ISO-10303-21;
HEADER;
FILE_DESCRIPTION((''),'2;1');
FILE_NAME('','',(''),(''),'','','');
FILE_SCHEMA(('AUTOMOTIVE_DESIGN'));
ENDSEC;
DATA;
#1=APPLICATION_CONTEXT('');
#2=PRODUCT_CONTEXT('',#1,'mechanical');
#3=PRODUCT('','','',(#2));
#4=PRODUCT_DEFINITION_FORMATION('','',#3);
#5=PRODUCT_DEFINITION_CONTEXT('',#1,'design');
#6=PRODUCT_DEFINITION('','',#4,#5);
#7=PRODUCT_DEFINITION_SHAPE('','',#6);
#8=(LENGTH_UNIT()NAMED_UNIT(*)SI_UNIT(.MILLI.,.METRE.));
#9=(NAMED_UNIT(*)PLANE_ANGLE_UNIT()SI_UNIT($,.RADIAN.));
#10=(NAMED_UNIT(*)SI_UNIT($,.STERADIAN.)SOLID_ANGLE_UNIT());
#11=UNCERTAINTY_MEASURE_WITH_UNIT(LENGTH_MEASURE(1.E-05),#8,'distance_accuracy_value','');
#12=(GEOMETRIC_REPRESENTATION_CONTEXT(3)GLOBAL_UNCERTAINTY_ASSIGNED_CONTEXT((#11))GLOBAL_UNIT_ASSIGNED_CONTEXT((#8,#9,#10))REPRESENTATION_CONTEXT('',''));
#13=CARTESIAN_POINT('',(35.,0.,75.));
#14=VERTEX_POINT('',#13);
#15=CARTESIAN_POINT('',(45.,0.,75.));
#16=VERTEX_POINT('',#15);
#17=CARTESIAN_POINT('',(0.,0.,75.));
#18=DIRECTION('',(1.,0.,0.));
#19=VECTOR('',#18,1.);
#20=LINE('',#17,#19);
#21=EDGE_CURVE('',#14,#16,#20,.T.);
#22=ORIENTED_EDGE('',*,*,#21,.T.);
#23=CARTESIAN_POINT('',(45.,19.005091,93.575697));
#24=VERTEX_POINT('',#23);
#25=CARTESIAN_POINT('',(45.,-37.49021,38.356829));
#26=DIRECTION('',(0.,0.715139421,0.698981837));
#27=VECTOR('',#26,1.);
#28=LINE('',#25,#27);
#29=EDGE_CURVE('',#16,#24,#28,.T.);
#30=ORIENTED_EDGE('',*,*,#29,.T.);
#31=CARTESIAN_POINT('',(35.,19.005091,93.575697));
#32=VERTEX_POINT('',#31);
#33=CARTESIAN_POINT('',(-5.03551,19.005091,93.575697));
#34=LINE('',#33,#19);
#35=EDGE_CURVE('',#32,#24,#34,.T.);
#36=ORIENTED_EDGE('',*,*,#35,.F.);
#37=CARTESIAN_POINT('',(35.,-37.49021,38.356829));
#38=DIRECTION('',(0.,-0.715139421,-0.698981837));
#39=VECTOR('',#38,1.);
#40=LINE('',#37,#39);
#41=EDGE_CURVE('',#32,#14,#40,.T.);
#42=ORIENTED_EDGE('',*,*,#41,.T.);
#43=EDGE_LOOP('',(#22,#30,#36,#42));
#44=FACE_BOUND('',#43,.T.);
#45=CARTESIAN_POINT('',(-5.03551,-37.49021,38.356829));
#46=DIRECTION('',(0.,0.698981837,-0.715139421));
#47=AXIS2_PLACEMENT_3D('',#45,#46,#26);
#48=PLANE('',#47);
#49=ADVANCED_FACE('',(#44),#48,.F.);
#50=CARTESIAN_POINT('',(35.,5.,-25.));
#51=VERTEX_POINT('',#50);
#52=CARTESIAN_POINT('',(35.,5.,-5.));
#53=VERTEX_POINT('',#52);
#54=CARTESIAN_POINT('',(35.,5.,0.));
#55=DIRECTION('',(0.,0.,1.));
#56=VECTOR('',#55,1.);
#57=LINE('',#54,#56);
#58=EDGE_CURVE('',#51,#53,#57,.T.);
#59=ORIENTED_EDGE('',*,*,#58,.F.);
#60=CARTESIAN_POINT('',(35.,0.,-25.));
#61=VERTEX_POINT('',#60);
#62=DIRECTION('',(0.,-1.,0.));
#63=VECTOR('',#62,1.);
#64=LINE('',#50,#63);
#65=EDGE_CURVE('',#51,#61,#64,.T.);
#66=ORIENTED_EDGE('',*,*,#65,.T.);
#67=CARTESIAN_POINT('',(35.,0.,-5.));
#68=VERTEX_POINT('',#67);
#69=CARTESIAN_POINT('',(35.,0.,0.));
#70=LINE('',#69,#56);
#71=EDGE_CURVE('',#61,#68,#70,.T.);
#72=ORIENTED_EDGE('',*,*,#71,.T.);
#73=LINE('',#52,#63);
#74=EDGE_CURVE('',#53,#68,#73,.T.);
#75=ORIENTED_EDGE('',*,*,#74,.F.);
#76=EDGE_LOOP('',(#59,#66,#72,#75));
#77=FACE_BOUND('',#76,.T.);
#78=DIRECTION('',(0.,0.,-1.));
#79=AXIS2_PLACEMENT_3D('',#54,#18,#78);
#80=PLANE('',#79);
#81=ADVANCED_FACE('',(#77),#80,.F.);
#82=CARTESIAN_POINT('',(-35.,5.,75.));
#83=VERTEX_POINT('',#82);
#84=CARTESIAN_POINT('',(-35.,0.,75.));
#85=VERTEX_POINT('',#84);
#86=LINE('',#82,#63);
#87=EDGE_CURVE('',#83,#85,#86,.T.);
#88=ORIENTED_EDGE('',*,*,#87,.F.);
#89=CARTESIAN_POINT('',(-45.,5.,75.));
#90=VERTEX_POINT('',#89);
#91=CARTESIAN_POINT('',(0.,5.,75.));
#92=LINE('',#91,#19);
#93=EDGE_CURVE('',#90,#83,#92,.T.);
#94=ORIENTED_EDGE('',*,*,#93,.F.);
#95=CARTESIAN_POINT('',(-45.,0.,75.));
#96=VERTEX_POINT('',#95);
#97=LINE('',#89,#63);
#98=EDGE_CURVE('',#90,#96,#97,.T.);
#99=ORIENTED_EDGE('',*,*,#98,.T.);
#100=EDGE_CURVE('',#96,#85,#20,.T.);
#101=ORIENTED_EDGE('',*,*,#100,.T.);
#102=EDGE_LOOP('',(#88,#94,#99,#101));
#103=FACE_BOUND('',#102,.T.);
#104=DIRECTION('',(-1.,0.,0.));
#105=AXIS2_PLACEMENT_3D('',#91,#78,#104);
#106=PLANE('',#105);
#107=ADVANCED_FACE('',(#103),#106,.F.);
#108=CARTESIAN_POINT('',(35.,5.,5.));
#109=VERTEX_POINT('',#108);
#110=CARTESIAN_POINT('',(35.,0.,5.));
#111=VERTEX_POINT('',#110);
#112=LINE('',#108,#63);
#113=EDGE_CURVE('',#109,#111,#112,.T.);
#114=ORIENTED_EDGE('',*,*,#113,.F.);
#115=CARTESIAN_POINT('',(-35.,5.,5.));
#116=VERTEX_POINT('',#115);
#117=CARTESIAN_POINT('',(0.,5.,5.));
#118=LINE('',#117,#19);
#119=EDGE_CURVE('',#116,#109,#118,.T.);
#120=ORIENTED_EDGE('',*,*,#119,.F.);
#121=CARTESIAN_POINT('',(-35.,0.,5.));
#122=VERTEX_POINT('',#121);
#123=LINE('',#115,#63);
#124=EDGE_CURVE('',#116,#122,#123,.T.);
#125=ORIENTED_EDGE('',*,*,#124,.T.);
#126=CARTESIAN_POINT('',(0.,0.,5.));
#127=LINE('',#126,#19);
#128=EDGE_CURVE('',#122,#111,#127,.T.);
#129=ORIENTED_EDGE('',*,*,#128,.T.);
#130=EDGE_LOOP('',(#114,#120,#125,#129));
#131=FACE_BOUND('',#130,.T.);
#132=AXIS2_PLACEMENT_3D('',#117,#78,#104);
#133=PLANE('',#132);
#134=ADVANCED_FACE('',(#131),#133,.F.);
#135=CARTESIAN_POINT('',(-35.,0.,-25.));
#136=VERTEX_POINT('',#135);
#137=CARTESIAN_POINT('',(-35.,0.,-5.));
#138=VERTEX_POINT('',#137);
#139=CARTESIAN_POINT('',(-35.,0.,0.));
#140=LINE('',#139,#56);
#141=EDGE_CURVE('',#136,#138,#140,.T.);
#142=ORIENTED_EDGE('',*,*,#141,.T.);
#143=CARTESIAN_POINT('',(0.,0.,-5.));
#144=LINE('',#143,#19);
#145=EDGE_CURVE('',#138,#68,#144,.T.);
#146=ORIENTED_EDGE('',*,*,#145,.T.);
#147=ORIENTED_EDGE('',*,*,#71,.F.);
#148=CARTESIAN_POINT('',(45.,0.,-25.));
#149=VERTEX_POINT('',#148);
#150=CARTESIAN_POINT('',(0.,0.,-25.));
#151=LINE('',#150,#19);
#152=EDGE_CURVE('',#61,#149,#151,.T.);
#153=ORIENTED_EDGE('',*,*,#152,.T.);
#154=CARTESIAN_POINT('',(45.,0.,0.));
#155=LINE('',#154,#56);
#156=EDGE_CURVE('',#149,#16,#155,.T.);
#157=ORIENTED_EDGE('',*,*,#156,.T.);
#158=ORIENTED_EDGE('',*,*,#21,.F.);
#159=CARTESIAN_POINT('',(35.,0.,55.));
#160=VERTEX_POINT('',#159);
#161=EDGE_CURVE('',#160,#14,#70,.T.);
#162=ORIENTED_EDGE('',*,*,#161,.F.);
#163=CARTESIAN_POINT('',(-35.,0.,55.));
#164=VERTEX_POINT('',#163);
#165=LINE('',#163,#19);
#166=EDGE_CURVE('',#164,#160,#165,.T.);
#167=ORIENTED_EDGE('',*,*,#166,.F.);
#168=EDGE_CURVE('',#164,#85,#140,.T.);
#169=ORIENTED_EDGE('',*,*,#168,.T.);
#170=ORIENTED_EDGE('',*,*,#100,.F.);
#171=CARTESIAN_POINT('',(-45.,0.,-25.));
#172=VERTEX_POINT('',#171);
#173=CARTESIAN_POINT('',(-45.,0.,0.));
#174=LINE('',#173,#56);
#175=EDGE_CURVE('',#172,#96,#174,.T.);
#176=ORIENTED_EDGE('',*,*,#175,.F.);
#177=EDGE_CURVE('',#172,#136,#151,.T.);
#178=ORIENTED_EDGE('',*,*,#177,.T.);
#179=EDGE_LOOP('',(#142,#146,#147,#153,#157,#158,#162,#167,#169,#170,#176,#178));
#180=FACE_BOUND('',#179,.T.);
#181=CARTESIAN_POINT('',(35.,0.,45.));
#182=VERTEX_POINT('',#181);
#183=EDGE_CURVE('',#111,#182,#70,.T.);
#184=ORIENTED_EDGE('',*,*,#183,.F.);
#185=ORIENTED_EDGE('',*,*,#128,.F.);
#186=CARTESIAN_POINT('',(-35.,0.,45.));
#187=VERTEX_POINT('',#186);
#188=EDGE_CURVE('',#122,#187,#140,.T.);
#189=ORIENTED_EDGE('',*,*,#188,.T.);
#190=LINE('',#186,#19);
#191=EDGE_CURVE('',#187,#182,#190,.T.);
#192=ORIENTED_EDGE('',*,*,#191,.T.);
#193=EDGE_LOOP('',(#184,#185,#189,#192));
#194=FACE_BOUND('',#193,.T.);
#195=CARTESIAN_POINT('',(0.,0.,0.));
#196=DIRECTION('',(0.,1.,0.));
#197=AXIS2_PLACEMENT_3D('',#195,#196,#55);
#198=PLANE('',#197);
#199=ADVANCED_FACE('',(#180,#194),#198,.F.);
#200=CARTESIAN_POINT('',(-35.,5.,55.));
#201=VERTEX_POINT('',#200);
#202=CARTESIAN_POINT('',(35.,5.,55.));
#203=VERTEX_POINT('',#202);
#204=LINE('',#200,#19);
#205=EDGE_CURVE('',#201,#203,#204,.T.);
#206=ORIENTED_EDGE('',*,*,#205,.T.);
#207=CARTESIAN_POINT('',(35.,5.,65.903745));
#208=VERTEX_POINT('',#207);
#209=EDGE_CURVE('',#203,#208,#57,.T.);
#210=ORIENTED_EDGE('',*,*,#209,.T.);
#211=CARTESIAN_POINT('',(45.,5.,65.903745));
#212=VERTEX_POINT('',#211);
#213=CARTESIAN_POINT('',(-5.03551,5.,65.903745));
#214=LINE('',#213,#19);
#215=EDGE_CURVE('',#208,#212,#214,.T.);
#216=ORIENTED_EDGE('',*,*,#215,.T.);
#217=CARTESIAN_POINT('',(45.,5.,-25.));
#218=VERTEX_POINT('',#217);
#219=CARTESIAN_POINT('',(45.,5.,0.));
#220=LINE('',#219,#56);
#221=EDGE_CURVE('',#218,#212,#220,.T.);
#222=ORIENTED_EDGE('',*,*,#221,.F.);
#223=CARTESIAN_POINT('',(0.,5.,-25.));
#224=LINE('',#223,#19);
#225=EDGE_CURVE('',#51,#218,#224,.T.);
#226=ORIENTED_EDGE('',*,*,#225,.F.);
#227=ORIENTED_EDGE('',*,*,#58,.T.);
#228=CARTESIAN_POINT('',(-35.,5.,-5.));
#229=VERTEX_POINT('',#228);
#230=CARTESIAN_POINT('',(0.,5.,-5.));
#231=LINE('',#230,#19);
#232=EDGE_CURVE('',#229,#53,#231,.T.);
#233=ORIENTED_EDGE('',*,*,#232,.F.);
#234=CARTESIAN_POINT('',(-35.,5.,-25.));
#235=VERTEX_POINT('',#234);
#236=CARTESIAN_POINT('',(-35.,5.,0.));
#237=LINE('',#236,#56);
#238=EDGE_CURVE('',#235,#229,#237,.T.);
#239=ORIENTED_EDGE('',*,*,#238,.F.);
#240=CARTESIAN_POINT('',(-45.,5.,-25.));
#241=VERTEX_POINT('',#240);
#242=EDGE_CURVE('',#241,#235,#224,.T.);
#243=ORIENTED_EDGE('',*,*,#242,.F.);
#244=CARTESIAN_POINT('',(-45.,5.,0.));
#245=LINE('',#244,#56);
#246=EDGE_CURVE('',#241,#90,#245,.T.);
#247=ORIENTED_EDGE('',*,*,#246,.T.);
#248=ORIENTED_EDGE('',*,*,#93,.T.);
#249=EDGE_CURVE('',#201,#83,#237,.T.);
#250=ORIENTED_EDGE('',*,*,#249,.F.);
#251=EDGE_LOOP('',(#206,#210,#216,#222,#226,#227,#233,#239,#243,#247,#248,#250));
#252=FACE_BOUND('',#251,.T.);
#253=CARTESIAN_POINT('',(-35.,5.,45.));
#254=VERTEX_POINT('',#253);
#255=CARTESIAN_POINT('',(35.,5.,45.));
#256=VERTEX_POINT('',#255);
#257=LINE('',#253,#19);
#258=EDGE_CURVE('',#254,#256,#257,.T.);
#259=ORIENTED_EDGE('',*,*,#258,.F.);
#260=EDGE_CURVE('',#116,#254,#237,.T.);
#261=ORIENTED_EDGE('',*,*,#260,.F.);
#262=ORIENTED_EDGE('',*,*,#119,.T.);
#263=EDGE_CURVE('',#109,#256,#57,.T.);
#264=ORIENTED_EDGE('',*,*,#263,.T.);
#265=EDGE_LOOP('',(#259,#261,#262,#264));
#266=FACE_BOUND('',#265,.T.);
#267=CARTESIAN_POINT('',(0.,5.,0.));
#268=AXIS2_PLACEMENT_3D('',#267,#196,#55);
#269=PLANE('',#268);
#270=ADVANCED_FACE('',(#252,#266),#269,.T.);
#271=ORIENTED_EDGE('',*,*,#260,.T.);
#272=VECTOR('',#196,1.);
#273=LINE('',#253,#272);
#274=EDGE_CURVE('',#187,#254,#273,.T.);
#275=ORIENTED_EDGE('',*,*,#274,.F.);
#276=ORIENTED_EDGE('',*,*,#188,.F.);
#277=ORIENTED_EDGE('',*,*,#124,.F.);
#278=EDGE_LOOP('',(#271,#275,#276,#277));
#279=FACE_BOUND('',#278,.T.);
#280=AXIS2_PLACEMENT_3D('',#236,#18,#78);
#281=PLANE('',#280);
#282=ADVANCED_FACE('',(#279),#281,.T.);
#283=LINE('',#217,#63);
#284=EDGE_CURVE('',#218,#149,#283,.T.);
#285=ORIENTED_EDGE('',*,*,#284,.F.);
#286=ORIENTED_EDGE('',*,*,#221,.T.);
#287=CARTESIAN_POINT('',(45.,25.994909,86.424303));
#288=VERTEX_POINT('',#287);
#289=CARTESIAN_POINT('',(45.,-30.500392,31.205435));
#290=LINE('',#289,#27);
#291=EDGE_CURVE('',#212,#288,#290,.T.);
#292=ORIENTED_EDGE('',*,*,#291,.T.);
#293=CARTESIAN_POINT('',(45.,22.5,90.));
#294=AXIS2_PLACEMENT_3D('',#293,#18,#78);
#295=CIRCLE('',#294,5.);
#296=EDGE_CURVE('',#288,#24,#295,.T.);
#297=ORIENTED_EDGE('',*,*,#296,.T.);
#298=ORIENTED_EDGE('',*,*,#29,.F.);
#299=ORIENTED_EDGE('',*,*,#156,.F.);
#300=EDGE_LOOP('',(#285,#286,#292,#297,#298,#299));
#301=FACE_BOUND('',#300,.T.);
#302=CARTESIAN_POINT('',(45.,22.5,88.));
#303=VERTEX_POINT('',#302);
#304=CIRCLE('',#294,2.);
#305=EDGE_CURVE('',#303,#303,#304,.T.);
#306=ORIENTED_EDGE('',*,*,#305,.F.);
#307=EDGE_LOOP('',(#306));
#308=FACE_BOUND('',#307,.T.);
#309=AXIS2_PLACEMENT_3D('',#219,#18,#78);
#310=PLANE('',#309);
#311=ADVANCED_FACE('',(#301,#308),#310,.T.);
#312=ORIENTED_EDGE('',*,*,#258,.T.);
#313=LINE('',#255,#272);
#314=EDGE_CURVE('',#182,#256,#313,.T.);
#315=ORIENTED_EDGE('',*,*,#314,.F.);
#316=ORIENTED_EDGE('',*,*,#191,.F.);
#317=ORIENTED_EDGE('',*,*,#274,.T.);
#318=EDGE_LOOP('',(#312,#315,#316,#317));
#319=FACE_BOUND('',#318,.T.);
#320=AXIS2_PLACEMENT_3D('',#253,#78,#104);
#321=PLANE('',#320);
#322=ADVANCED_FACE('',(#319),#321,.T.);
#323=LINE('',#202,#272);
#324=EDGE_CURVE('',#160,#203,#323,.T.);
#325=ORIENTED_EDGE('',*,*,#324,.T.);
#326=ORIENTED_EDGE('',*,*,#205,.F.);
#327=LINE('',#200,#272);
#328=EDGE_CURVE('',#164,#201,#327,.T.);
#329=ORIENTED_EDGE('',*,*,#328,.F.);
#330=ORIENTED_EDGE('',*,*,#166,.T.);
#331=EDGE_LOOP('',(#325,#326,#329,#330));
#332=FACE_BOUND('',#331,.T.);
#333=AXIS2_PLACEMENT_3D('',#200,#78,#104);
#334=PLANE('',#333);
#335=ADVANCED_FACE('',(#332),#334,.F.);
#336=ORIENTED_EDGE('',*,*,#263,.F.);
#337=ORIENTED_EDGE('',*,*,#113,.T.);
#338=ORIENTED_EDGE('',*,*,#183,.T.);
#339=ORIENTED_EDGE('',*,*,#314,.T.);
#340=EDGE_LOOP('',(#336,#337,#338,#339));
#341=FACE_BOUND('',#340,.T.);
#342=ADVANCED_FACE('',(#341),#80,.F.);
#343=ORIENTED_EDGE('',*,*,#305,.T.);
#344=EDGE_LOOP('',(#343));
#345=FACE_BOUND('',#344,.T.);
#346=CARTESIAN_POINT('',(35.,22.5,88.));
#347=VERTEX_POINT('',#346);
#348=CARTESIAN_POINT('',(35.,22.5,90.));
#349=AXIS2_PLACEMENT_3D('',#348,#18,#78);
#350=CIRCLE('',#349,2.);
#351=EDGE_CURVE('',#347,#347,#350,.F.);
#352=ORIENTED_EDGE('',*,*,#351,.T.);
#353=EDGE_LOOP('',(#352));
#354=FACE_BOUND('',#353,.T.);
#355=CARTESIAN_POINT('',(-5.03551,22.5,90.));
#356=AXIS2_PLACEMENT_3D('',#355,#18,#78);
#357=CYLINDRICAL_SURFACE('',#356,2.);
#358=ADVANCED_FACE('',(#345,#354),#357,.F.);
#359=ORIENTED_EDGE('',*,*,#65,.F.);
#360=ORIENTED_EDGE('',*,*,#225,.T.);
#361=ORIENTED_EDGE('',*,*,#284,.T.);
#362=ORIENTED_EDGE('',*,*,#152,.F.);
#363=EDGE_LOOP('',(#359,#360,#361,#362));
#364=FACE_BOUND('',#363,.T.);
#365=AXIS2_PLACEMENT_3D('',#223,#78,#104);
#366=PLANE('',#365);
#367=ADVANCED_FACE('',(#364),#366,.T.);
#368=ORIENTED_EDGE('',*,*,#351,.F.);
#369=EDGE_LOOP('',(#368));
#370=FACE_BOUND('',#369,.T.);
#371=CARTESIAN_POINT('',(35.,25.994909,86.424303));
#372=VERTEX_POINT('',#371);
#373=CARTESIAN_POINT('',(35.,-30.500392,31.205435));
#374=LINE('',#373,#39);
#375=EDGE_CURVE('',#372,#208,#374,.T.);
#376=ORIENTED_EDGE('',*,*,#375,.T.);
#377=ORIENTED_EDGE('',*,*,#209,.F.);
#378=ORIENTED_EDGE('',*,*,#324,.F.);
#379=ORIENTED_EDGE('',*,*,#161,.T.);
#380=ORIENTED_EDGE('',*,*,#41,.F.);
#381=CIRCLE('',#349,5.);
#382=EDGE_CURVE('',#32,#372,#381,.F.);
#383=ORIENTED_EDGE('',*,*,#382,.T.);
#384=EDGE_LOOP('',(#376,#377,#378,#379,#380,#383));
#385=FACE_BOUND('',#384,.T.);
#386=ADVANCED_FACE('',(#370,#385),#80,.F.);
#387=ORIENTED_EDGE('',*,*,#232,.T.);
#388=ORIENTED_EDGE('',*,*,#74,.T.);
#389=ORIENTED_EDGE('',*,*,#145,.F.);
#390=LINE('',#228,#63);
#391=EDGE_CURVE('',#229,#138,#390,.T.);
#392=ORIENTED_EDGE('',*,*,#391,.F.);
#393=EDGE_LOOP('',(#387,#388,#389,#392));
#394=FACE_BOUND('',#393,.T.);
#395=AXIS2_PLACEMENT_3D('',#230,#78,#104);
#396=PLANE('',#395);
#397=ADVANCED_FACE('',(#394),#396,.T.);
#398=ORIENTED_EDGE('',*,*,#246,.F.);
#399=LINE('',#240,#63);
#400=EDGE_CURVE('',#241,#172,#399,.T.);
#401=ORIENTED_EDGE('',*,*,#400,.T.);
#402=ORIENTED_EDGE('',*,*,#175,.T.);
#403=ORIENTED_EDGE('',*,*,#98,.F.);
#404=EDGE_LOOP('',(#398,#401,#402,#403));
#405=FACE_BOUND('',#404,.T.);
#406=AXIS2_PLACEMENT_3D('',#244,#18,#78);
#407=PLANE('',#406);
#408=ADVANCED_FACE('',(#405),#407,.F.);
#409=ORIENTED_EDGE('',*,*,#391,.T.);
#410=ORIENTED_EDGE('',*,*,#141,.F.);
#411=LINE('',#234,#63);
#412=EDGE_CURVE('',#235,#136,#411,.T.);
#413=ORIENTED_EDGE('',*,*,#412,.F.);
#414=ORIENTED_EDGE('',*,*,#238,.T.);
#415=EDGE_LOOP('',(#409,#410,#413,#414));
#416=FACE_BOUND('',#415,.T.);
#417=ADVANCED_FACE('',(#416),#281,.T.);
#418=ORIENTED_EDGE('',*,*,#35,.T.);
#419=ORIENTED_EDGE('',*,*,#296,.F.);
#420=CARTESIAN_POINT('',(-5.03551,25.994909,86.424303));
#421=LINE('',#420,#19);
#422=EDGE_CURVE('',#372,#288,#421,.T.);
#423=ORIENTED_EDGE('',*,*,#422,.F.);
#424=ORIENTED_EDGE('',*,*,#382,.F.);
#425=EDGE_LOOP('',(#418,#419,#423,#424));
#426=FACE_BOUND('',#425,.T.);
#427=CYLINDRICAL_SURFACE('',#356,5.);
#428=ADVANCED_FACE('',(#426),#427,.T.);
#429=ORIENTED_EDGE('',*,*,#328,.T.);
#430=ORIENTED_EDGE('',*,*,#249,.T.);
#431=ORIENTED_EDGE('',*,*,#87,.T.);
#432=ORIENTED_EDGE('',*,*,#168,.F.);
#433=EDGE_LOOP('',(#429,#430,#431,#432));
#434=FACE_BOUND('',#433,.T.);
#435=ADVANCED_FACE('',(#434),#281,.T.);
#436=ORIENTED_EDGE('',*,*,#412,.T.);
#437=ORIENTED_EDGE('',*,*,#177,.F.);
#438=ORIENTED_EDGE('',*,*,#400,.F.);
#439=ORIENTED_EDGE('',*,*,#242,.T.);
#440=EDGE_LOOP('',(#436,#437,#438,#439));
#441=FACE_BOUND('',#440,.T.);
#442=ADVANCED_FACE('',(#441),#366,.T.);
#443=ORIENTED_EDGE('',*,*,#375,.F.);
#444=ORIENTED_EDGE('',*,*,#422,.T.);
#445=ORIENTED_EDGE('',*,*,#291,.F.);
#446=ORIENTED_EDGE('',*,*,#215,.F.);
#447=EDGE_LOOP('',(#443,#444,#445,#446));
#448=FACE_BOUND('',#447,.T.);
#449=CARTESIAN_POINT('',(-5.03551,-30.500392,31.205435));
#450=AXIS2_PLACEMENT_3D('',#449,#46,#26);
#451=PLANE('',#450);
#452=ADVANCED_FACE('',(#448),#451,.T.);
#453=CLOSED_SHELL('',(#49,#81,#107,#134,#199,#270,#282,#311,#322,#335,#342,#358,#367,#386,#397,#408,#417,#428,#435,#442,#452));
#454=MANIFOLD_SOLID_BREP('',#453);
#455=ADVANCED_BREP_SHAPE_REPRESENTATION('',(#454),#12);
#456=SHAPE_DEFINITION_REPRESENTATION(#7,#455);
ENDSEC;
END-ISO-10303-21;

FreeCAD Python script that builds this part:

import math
import FreeCAD as App
import Part
import Sketcher

V = App.Vector


def add_polygon(sketch, points):
    """Adds a closed chain of lines whose ends are joined by coincident constraints."""
    first, n = sketch.GeometryCount, len(points)
    for a, b in zip(points, points[1:] + points[:1]):
        sketch.addGeometry(Part.LineSegment(App.Vector(*a, 0), App.Vector(*b, 0)), False)
    for i in range(n):
        sketch.addConstraint(Sketcher.Constraint("Coincident", first + i, 2, first + (i + 1) % n, 1))

doc = App.newDocument("Part")
body = doc.addObject("PartDesign::Body", "Body")

sketch1 = body.newObject("Sketcher::SketchObject", "Sketch")
sketch1.AttachmentSupport = (doc.getObject("XZ_Plane"), [""])
sketch1.MapMode = "FlatFace"
add_polygon(sketch1, [(-35, -25), (-45, -25), (-45, 75), (-35, 75), (-35, 55), (35, 55), (35, 75), (45, 75), (45, -25), (35, -25), (35, -5), (-35, -5)])
add_polygon(sketch1, [(-35, 45), (-35, 5), (35, 5), (35, 45)])
sketch1.addConstraint(Sketcher.Constraint("Horizontal", 0))
sketch1.addConstraint(Sketcher.Constraint("Vertical", 1))
sketch1.addConstraint(Sketcher.Constraint("Horizontal", 2))
sketch1.addConstraint(Sketcher.Constraint("Vertical", 3))
sketch1.addConstraint(Sketcher.Constraint("Horizontal", 4))
sketch1.addConstraint(Sketcher.Constraint("Vertical", 5))
sketch1.addConstraint(Sketcher.Constraint("Horizontal", 6))
sketch1.addConstraint(Sketcher.Constraint("Vertical", 7))
sketch1.addConstraint(Sketcher.Constraint("Horizontal", 8))
sketch1.addConstraint(Sketcher.Constraint("Vertical", 9))
sketch1.addConstraint(Sketcher.Constraint("Horizontal", 10))
sketch1.addConstraint(Sketcher.Constraint("Vertical", 11))
sketch1.addConstraint(Sketcher.Constraint("Vertical", 12))
sketch1.addConstraint(Sketcher.Constraint("Horizontal", 13))
sketch1.addConstraint(Sketcher.Constraint("Vertical", 14))
sketch1.addConstraint(Sketcher.Constraint("Horizontal", 15))
sketch1.addConstraint(Sketcher.Constraint("Symmetric", 9, 2, 12, 2, -1, 1))
sketch1.addConstraint(Sketcher.Constraint("Symmetric", 2, 2, 5, 2, -2))
sketch1.addConstraint(Sketcher.Constraint("Symmetric", 0, 2, 7, 2, -2))
sketch1.addConstraint(Sketcher.Constraint("Vertical", 5, 2, 8, 2))
sketch1.addConstraint(Sketcher.Constraint("Vertical", 3, 2, 10, 2))
sketch1.addConstraint(Sketcher.Constraint("Vertical", 9, 2, 13, 2))
sketch1.addConstraint(Sketcher.Constraint("Equal", 5, 9))
sketch1.addConstraint(Sketcher.Constraint("DistanceX", 0, 2, 0, 1, 10.0))
sketch1.addConstraint(Sketcher.Constraint("DistanceX", 4, 1, 4, 2, 70.0))
sketch1.addConstraint(Sketcher.Constraint("DistanceY", 1, 1, 1, 2, 100.0))
sketch1.addConstraint(Sketcher.Constraint("DistanceY", 3, 2, 3, 1, 20.0))
sketch1.addConstraint(Sketcher.Constraint("DistanceY", 12, 2, 12, 1, 40.0))
sketch1.addConstraint(Sketcher.Constraint("DistanceY", 0, 2, -1, 1, 25.0))
pad1 = body.newObject("PartDesign::Pad", "Pad")
pad1.Profile = sketch1
pad1.Length = 5
pad1.Reversed = True

sketch2 = body.newObject("Sketcher::SketchObject", "Sketch001")
sketch2.AttachmentSupport = (doc.getObject("YZ_Plane"), [""])
sketch2.MapMode = "FlatFace"
sketch2.AttachmentOffset = App.Placement(V(0, 0, 45), App.Rotation())
sketch2.addGeometry(Part.LineSegment(V(19, 93.6, 0), V(0, 75, 0)), False)
sketch2.addGeometry(Part.LineSegment(V(0, 75, 0), V(5, 75, 0)), False)
sketch2.addGeometry(Part.LineSegment(V(5, 75, 0), V(5, 65.9, 0)), False)
sketch2.addGeometry(Part.LineSegment(V(5, 65.9, 0), V(26, 86.4, 0)), False)
sketch2.addGeometry(Part.ArcOfCircle(Part.Circle(V(22.5, 90, 0), V(0, 0, 1), 5), math.radians(-46), math.radians(134)), False)
sketch2.addGeometry(Part.Circle(V(22.5, 90, 0), V(0, 0, 1), 2), False)
sketch2.addConstraint(Sketcher.Constraint("Coincident", 0, 2, 1, 1))
sketch2.addConstraint(Sketcher.Constraint("Coincident", 1, 2, 2, 1))
sketch2.addConstraint(Sketcher.Constraint("Coincident", 2, 2, 3, 1))
sketch2.addConstraint(Sketcher.Constraint("Tangent", 3, 2, 4, 1))
sketch2.addConstraint(Sketcher.Constraint("Tangent", 4, 2, 0, 1))
sketch2.addConstraint(Sketcher.Constraint("Horizontal", 1))
sketch2.addConstraint(Sketcher.Constraint("Vertical", 2))
sketch2.addConstraint(Sketcher.Constraint("Coincident", 5, 3, 4, 3))
sketch2.addConstraint(Sketcher.Constraint("PointOnObject", 0, 2, -2))
sketch2.addConstraint(Sketcher.Constraint("Parallel", 0, 3))
sketch2.addConstraint(Sketcher.Constraint("Diameter", 5, 4.0))
sketch2.addConstraint(Sketcher.Constraint("Radius", 4, 5.0))
sketch2.addConstraint(Sketcher.Constraint("DistanceX", 1, 1, 1, 2, 5.0))
sketch2.addConstraint(Sketcher.Constraint("DistanceY", -1, 1, 4, 3, 90.0))
sketch2.addConstraint(Sketcher.Constraint("DistanceY", -1, 1, 0, 2, 75.0))
sketch2.addConstraint(Sketcher.Constraint("DistanceX", -1, 1, 4, 3, 22.5))
pad2 = body.newObject("PartDesign::Pad", "Pad001")
pad2.Profile = sketch2
pad2.Length = 10
pad2.Reversed = True

doc.recompute()
